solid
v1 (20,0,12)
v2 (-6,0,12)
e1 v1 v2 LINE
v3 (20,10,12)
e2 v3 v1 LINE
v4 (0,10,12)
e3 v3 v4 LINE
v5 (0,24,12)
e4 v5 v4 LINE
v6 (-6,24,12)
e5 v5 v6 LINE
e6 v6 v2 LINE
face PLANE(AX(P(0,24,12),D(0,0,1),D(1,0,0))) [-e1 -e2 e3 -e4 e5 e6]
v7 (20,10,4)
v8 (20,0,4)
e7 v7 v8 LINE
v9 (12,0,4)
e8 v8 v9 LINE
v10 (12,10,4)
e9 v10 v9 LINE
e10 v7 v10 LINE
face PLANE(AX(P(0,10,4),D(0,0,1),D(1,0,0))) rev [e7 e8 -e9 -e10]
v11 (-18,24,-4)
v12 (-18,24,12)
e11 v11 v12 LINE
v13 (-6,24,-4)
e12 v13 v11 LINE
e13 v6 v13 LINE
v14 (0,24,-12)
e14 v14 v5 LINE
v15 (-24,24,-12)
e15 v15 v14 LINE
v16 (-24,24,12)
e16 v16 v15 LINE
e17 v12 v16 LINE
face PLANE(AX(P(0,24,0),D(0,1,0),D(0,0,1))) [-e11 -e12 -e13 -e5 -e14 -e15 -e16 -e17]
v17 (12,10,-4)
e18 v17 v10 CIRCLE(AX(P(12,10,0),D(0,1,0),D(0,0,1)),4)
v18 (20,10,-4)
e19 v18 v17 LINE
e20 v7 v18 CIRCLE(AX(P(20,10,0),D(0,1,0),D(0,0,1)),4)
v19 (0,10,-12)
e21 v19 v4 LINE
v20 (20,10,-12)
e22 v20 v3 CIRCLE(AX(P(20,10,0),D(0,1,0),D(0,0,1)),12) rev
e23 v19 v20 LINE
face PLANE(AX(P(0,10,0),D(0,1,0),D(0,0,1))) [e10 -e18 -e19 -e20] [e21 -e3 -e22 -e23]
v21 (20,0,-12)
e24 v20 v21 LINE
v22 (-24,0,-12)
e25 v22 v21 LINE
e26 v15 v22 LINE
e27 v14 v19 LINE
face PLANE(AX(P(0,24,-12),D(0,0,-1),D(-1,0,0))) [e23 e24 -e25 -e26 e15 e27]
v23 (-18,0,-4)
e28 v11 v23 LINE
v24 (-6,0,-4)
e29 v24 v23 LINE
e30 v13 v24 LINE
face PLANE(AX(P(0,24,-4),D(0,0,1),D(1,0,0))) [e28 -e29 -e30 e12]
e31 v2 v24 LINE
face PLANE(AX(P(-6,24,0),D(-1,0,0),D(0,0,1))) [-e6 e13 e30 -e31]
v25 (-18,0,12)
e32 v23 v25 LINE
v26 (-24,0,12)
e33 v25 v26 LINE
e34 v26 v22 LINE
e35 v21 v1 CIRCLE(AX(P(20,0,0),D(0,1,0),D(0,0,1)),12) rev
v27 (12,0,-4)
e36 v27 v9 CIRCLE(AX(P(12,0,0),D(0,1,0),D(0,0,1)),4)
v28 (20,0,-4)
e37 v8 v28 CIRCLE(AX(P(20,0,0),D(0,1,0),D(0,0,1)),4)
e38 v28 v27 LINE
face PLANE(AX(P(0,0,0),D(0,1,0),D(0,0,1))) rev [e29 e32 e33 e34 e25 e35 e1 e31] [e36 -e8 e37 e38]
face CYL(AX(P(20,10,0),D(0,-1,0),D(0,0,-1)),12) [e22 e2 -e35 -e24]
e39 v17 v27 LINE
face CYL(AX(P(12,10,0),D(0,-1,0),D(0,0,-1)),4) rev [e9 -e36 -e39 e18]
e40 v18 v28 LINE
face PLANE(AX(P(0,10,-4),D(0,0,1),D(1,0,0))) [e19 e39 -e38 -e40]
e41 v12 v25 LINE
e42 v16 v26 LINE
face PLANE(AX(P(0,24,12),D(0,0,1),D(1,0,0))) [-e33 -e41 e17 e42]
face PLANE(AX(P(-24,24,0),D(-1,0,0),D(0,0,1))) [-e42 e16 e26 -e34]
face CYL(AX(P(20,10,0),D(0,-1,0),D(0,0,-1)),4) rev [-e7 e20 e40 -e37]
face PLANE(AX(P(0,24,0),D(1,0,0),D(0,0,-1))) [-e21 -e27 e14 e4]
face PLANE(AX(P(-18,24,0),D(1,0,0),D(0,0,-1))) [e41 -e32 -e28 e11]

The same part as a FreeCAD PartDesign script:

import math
import FreeCAD as App
import Part
import Sketcher

V = App.Vector

doc = App.newDocument("Part")
body = doc.addObject("PartDesign::Body", "Body")

# Sketch on XZ plane
sketch1 = body.newObject("Sketcher::SketchObject", "Sketch")
sketch1.AttachmentSupport = (doc.getObject("XZ_Plane"), [""])
sketch1.MapMode = "FlatFace"
sketch1.addGeometry([
    Part.LineSegment(V(0, -12, 0), V(-24, -12, 0)),  # 0
    Part.LineSegment(V(-24, -12, 0), V(-24, 12, 0)),  # 1
    Part.LineSegment(V(-24, 12, 0), V(-18, 12, 0)),  # 2
    Part.LineSegment(V(-18, 12, 0), V(-18, -4, 0)),  # 3
    Part.LineSegment(V(-18, -4, 0), V(-6, -4, 0)),  # 4
    Part.LineSegment(V(-6, -4, 0), V(-6, 12, 0)),  # 5
    Part.LineSegment(V(-6, 12, 0), V(0, 12, 0)),  # 6
    Part.LineSegment(V(0, 12, 0), V(0, -12, 0)),  # 7
], False)
sketch1.addConstraint([
    Sketcher.Constraint("Coincident", 0, 2, 1, 1),
    Sketcher.Constraint("Coincident", 1, 2, 2, 1),
    Sketcher.Constraint("Coincident", 2, 2, 3, 1),
    Sketcher.Constraint("Coincident", 3, 2, 4, 1),
    Sketcher.Constraint("Coincident", 4, 2, 5, 1),
    Sketcher.Constraint("Coincident", 5, 2, 6, 1),
    Sketcher.Constraint("Coincident", 6, 2, 7, 1),
    Sketcher.Constraint("Coincident", 7, 2, 0, 1),
    Sketcher.Constraint("Horizontal", 0),
    Sketcher.Constraint("Vertical", 1),
    Sketcher.Constraint("Horizontal", 2),
    Sketcher.Constraint("Vertical", 3),
    Sketcher.Constraint("Horizontal", 4),
    Sketcher.Constraint("Vertical", 5),
    Sketcher.Constraint("Horizontal", 6),
    Sketcher.Constraint("Vertical", 7),
    Sketcher.Constraint("Symmetric", 6, 2, 7, 2, -1, 1),
    Sketcher.Constraint("Horizontal", 2, 2, 5, 2),
    Sketcher.Constraint("Equal", 2, 6),
    Sketcher.Constraint("Equal", 0, 1),
    Sketcher.Constraint("DistanceX", 0, 2, 0, 1, 24.0),
    Sketcher.Constraint("DistanceX", 2, 1, 2, 2, 6.0),
    Sketcher.Constraint("DistanceY", 3, 2, 3, 1, 16.0),
])
pad1 = body.newObject("PartDesign::Pad", "Pad")
pad1.Profile = sketch1
pad1.Length = 24
pad1.Reversed = True

# Sketch on XZ plane
sketch2 = body.newObject("Sketcher::SketchObject", "Sketch001")
sketch2.AttachmentSupport = (doc.getObject("XZ_Plane"), [""])
sketch2.MapMode = "FlatFace"
sketch2.addGeometry([
    Part.ArcOfCircle(Part.Circle(V(20, 0, 0), V(0, 0, 1), 12), math.radians(-90), math.radians(90)),  # 0
    Part.LineSegment(V(20, -12, 0), V(0, -12, 0)),  # 1
    Part.LineSegment(V(0, -12, 0), V(0, 12, 0)),  # 2
    Part.LineSegment(V(0, 12, 0), V(20, 12, 0)),  # 3
    Part.LineSegment(V(12, -4, 0), V(20, -4, 0)),  # 4
    Part.ArcOfCircle(Part.Circle(V(20, 0, 0), V(0, 0, 1), 4), math.radians(-90), math.radians(90)),  # 5
    Part.LineSegment(V(20, 4, 0), V(12, 4, 0)),  # 6
    Part.ArcOfCircle(Part.Circle(V(12, 0, 0), V(0, 0, 1), 4), math.radians(90), math.radians(270)),  # 7
], False)
sketch2.addConstraint([
    Sketcher.Constraint("Tangent", 0, 1, 1, 1),
    Sketcher.Constraint("Coincident", 1, 2, 2, 1),
    Sketcher.Constraint("Coincident", 2, 2, 3, 1),
    Sketcher.Constraint("Tangent", 3, 2, 0, 2),
    Sketcher.Constraint("Tangent", 4, 2, 5, 1),
    Sketcher.Constraint("Tangent", 5, 2, 6, 1),
    Sketcher.Constraint("Tangent", 6, 2, 7, 1),
    Sketcher.Constraint("Tangent", 7, 2, 4, 1),
    Sketcher.Constraint("Horizontal", 1),
    Sketcher.Constraint("Vertical", 2),
    Sketcher.Constraint("Horizontal", 3),
    Sketcher.Constraint("Horizontal", 4),
    Sketcher.Constraint("Horizontal", 6),
    Sketcher.Constraint("Coincident", 5, 3, 0, 3),
    Sketcher.Constraint("Symmetric", 1, 2, 2, 2, -1, 1),
    Sketcher.Constraint("Radius", 0, 12.0),
    Sketcher.Constraint("Radius", 5, 4.0),
    Sketcher.Constraint("DistanceX", 1, 2, 1, 1, 20.0),
    Sketcher.Constraint("DistanceX", 4, 1, 4, 2, 8.0),
])
pad2 = body.newObject("PartDesign::Pad", "Pad001")
pad2.Profile = sketch2
pad2.Length = 10
pad2.Reversed = True

doc.recompute()
